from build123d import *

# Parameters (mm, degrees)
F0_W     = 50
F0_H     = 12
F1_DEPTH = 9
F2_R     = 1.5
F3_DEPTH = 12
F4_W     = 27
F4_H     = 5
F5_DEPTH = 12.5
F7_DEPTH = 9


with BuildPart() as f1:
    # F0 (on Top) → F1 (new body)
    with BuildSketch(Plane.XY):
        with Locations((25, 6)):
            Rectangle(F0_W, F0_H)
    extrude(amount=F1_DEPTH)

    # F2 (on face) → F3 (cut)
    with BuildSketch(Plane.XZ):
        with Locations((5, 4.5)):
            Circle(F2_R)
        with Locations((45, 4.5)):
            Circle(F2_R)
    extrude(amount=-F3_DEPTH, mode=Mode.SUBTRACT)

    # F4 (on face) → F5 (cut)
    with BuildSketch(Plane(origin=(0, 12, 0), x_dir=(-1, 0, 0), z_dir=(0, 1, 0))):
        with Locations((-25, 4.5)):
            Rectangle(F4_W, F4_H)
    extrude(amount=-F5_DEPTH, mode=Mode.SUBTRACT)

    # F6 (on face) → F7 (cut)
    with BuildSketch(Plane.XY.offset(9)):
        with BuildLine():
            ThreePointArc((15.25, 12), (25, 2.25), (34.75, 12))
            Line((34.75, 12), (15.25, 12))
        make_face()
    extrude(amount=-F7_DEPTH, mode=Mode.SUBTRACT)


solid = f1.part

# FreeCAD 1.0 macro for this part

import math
import FreeCAD as App
import Part
import Sketcher
from FreeCAD import Vector


def add_polygon(sketch, points):
    """Adds a closed chain of lines whose ends are joined by coincident constraints."""
    first, n = sketch.GeometryCount, len(points)
    for a, b in zip(points, points[1:] + points[:1]):
        sketch.addGeometry(Part.LineSegment(App.Vector(*a, 0), App.Vector(*b, 0)), False)
    for i in range(n):
        sketch.addConstraint(Sketcher.Constraint("Coincident", first + i, 2, first + (i + 1) % n, 1))

doc = App.newDocument("Part")
params = doc.addObject("Spreadsheet::Sheet", "Params")
for row, (alias, value) in enumerate([
    ("sketch1_width", "50 mm"),
    ("sketch1_height", "12 mm"),
    ("pad1_length", "9 mm"),
    ("sketch2_diameter", "3 mm"),
    ("pocket1_length", "12 mm"),
    ("sketch3_width", "27 mm"),
    ("sketch3_height", "5 mm"),
    ("pocket2_length", "12.5 mm"),
    ("sketch4_radius", "9.75 mm"),
    ("pocket3_length", "9 mm"),
], start=1):
    params.set(f"A{row}", alias)
    params.set(f"B{row}", "=" + value)
    params.setAlias(f"B{row}", alias)

body = doc.addObject("PartDesign::Body", "Body")

# Sketch on XY plane
sketch1 = body.newObject("Sketcher::SketchObject", "Sketch")
sketch1.AttachmentSupport = (doc.getObject("XY_Plane"), [""])
sketch1.MapMode = "FlatFace"
add_polygon(sketch1, [(0, 12), (0, 0), (50, 0), (50, 12)])  # lines 0-3
sketch1.addConstraint([
    Sketcher.Constraint("Vertical", 0),
    Sketcher.Constraint("Horizontal", 1),
    Sketcher.Constraint("Vertical", 2),
    Sketcher.Constraint("Horizontal", 3),
    Sketcher.Constraint("Coincident", 0, 2, -1, 1),
    Sketcher.Constraint("DistanceX", 1, 1, 1, 2, 50.0),
    Sketcher.Constraint("DistanceY", 0, 2, 0, 1, 12.0),
])
sketch1.setExpression("Constraints[9]", "Params.sketch1_width")
sketch1.setExpression("Constraints[10]", "Params.sketch1_height")
pad1 = body.newObject("PartDesign::Pad", "Pad")
pad1.Profile = sketch1
pad1.setExpression("Length", "Params.pad1_length")

# Sketch on XZ plane
sketch2 = body.newObject("Sketcher::SketchObject", "Sketch001")
sketch2.AttachmentSupport = (doc.getObject("XZ_Plane"), [""])
sketch2.MapMode = "FlatFace"
sketch2.addGeometry([
    Part.Circle(Vector(5, 4.5, 0), Vector(0, 0, 1), 1.5),
    Part.Circle(Vector(45, 4.5, 0), Vector(0, 0, 1), 1.5),
], False)
sketch2.addConstraint([
    Sketcher.Constraint("Equal", 0, 1),
    Sketcher.Constraint("Horizontal", 0, 3, 1, 3),
    Sketcher.Constraint("Diameter", 0, 3.0),
    Sketcher.Constraint("DistanceX", -1, 1, 0, 3, 5.0),
    Sketcher.Constraint("DistanceX", -1, 1, 1, 3, 45.0),
    Sketcher.Constraint("DistanceY", -1, 1, 0, 3, 4.5),
])
sketch2.setExpression("Constraints[2]", "Params.sketch2_diameter")
pocket1 = body.newObject("PartDesign::Pocket", "Pocket")
pocket1.Profile = sketch2
pocket1.setExpression("Length", "Params.pocket1_length")

# Sketch on XZ plane
sketch3 = body.newObject("Sketcher::SketchObject", "Sketch002")
sketch3.AttachmentSupport = (doc.getObject("XZ_Plane"), [""])
sketch3.MapMode = "FlatFace"
sketch3.AttachmentOffset = App.Placement(Vector(0, 0, -12), App.Rotation())
add_polygon(sketch3, [(38, 7), (38, 2), (12, 2), (12, 7)])  # lines 0-3
sketch3.addConstraint([
    Sketcher.Constraint("Vertical", 0),
    Sketcher.Constraint("Horizontal", 1),
    Sketcher.Constraint("Vertical", 2),
    Sketcher.Constraint("Horizontal", 3),
    Sketcher.Constraint("DistanceX", 1, 2, 1, 1, 27.0),
    Sketcher.Constraint("DistanceY", 0, 2, 0, 1, 5.0),
    Sketcher.Constraint("DistanceY", -1, 1, 0, 2, 2.0),
    Sketcher.Constraint("DistanceX", -1, 1, 0, 2, 38.5),
])
sketch3.setExpression("Constraints[8]", "Params.sketch3_width")
sketch3.setExpression("Constraints[9]", "Params.sketch3_height")
pocket2 = body.newObject("PartDesign::Pocket", "Pocket001")
pocket2.Profile = sketch3
pocket2.setExpression("Length", "Params.pocket2_length")
pocket2.Reversed = True

# Sketch on XY plane
sketch4 = body.newObject("Sketcher::SketchObject", "Sketch003")
sketch4.AttachmentSupport = (doc.getObject("XY_Plane"), [""])
sketch4.MapMode = "FlatFace"
sketch4.AttachmentOffset = App.Placement(Vector(0, 0, 9), App.Rotation())
sketch4.addGeometry([
    Part.ArcOfCircle(Part.Circle(Vector(25, 12, 0), Vector(0, 0, 1), 10), math.radians(180), math.radians(360)),
    Part.LineSegment(Vector(35, 12, 0), Vector(15, 12, 0)),
], False)
sketch4.addConstraint([
    Sketcher.Constraint("Coincident", 0, 1, 1, 2),
    Sketcher.Constraint("Coincident", 1, 1, 0, 2),
    Sketcher.Constraint("Horizontal", 1),
    Sketcher.Constraint("Radius", 0, 9.75),
    Sketcher.Constraint("DistanceX", -1, 1, 0, 3, 25.0),
    Sketcher.Constraint("DistanceY", -1, 1, 0, 3, 12.0),
    Sketcher.Constraint("DistanceY", -1, 1, 0, 1, 12.0),
])
sketch4.setExpression("Constraints[3]", "Params.sketch4_radius")
pocket3 = body.newObject("PartDesign::Pocket", "Pocket002")
pocket3.Profile = sketch4
pocket3.setExpression("Length", "Params.pocket3_length")

doc.recompute()
